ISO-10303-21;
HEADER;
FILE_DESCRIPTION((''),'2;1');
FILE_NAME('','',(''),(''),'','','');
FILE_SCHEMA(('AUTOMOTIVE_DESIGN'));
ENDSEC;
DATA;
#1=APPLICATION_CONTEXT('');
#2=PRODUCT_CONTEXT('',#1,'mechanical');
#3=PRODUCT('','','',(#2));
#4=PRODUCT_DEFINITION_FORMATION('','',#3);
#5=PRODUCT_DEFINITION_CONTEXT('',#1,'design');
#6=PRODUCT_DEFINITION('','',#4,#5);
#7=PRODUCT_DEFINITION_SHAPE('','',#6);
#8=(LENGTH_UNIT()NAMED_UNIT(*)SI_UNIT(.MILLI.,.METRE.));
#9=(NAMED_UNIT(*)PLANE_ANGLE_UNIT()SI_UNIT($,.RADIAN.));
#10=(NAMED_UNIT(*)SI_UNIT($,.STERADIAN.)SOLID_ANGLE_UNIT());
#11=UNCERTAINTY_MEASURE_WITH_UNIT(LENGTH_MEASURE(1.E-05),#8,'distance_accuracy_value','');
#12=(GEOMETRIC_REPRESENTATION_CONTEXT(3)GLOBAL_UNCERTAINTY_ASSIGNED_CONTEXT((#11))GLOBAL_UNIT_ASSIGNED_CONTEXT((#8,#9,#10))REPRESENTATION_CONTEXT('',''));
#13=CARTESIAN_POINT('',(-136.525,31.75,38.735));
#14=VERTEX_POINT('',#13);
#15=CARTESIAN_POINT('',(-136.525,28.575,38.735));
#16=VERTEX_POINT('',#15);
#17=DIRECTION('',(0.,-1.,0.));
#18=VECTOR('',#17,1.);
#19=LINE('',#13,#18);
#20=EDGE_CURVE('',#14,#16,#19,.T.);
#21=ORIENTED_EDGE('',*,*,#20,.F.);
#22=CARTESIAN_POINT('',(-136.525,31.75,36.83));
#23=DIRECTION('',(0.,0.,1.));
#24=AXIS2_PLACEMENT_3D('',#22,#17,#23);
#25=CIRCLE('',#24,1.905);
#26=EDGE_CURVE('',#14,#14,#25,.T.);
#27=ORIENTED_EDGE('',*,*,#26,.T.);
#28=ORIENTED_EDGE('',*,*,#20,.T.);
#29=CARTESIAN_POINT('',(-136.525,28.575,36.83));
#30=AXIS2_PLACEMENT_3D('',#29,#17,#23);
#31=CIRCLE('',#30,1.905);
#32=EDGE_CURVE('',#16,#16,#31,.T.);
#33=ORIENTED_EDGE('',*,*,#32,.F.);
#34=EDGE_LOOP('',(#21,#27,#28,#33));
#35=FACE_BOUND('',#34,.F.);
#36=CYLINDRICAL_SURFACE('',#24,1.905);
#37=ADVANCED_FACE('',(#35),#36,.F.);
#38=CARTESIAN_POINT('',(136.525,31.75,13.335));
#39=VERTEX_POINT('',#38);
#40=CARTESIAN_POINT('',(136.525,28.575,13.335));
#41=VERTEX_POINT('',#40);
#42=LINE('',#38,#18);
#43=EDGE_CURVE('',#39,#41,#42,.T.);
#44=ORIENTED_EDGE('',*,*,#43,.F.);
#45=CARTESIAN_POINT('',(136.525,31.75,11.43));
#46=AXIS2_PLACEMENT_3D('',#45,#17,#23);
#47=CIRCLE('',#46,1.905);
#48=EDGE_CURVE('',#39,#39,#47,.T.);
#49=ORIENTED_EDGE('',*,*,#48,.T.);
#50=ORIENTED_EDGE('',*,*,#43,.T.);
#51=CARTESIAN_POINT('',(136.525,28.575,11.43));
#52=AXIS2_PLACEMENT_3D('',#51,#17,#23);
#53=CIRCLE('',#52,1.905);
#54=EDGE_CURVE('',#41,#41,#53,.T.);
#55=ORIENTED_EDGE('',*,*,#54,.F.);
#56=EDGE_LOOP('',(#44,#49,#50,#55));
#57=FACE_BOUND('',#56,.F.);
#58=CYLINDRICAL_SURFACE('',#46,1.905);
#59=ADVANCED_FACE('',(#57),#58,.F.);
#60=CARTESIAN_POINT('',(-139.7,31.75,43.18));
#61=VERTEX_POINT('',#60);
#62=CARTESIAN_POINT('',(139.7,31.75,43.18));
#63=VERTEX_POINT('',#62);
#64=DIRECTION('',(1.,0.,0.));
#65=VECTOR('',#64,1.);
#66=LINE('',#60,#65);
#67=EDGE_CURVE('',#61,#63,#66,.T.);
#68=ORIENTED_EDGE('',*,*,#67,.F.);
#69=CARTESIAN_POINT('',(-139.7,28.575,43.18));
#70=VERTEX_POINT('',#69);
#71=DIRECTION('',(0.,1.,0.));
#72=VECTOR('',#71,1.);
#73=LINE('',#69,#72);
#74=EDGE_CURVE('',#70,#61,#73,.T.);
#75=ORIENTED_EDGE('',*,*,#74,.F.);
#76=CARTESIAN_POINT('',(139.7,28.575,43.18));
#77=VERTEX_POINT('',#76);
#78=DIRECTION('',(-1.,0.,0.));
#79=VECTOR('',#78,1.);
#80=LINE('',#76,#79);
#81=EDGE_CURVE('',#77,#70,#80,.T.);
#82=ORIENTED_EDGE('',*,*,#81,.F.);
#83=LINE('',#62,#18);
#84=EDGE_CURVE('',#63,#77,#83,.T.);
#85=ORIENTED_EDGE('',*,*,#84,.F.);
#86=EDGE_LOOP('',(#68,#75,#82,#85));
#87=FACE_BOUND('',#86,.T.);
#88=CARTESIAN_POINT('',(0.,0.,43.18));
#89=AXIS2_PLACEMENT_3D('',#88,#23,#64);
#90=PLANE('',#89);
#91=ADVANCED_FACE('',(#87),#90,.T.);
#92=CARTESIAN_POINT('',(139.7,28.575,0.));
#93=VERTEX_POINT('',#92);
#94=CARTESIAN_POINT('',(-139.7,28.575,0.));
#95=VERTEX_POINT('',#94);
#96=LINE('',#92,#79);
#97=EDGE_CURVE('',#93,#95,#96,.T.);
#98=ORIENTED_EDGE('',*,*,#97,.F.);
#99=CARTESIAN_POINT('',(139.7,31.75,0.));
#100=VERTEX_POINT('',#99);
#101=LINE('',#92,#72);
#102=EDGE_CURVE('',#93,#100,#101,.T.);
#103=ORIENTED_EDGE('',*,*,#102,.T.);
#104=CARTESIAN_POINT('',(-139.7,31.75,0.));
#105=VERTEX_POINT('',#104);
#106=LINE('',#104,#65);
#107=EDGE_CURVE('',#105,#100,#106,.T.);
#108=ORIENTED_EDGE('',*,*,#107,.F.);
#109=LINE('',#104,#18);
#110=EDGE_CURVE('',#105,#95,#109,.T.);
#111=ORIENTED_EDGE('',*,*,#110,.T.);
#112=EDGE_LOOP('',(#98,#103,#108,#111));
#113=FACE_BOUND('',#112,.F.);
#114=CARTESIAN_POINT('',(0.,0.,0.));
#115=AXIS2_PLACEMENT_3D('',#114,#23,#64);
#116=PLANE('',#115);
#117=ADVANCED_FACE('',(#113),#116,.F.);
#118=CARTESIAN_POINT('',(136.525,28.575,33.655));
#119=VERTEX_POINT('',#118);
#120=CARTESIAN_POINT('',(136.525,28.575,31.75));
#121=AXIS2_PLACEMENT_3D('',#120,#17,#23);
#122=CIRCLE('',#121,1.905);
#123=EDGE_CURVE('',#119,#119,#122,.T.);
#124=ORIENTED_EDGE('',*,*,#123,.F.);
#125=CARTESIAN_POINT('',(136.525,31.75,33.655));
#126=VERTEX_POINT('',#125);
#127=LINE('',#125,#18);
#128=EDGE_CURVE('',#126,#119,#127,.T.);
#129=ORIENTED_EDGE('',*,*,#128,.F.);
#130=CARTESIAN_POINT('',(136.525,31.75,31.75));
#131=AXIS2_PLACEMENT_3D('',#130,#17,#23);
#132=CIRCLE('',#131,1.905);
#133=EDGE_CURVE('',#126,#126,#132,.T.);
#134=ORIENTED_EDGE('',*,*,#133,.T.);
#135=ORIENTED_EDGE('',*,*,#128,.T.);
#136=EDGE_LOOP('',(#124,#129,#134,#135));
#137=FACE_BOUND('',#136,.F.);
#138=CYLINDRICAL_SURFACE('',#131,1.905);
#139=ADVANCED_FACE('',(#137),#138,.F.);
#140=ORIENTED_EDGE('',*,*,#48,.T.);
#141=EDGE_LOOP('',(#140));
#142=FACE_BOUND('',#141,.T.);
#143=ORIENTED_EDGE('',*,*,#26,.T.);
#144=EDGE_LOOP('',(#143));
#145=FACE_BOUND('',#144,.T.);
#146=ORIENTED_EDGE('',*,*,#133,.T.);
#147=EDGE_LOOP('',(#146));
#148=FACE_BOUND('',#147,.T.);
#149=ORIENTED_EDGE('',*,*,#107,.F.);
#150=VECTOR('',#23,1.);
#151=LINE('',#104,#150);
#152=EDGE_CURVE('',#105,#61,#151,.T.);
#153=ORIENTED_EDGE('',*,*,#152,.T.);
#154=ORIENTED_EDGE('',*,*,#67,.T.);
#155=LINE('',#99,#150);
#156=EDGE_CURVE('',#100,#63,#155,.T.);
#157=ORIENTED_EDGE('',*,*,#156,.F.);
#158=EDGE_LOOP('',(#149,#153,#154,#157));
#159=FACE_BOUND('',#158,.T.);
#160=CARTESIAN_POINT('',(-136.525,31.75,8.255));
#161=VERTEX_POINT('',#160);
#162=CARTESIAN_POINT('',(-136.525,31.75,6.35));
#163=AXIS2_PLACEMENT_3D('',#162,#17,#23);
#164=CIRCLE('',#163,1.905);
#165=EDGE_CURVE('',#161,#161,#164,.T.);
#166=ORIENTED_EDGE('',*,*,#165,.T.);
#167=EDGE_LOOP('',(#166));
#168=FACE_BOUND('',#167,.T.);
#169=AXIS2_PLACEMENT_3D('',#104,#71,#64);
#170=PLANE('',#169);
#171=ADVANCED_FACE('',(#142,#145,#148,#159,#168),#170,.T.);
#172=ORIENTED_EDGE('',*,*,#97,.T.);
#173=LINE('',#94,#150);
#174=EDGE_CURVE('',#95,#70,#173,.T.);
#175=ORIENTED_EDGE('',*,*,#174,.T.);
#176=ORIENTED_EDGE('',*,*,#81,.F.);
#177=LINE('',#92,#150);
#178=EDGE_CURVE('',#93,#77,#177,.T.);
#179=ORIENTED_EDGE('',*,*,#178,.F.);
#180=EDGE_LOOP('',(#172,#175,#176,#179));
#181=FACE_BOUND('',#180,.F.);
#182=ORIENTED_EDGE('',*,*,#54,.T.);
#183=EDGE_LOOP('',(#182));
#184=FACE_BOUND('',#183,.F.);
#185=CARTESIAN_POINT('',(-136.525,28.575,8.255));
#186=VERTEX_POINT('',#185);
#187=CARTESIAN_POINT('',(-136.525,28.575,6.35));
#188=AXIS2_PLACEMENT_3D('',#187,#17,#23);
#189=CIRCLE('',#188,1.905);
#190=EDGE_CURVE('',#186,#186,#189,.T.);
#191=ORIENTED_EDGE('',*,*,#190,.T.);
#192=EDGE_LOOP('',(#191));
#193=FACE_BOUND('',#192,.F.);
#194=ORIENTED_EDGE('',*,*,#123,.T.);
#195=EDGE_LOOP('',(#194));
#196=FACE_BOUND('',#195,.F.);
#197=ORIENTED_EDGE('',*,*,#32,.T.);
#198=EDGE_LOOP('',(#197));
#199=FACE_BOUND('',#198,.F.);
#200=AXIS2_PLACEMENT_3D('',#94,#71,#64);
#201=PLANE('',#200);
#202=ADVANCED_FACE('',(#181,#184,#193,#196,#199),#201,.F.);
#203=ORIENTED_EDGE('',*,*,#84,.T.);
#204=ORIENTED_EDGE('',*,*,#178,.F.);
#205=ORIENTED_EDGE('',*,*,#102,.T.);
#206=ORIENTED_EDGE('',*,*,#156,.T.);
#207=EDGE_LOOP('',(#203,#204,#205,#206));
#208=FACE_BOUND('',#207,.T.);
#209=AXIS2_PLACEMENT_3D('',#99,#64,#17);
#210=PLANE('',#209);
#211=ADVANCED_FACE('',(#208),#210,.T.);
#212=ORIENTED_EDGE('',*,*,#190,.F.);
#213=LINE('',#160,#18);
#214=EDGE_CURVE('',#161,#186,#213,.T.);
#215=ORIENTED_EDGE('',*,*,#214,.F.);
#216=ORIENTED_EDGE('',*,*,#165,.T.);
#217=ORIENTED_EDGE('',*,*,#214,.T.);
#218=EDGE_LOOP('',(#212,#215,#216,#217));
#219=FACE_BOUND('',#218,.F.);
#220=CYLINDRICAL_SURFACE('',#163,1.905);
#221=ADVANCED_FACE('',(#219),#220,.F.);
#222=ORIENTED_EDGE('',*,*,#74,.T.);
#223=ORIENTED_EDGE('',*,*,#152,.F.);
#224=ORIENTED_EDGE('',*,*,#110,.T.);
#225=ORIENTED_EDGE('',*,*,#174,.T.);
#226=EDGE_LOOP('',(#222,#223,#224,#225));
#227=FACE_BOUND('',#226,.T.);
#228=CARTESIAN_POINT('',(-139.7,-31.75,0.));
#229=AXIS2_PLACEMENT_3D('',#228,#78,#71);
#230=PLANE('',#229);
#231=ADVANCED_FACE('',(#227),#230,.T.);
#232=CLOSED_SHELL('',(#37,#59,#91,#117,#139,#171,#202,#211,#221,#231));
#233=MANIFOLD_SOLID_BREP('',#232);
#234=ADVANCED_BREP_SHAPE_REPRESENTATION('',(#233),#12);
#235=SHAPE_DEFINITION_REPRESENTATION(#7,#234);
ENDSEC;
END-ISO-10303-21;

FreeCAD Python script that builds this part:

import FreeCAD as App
import Part
import Sketcher
Q = App.Units.Quantity

doc = App.newDocument("Part")
body = doc.addObject("PartDesign::Body", "Body")

# Sketch on XY plane
sketch1 = body.newObject("Sketcher::SketchObject", "Sketch")
sketch1.AttachmentSupport = (doc.getObject("XY_Plane"), [""])
sketch1.MapMode = "FlatFace"
sketch1.addGeometry([
    Part.LineSegment(App.Vector(139.7, 31.75, 0), App.Vector(-139.7, 31.75, 0)),
    Part.LineSegment(App.Vector(-139.7, 31.75, 0), App.Vector(-139.7, -31.75, 0)),
    Part.LineSegment(App.Vector(-139.7, -31.75, 0), App.Vector(139.7, -31.75, 0)),
    Part.LineSegment(App.Vector(139.7, -31.75, 0), App.Vector(139.7, 31.75, 0)),
], False)
sketch1.addConstraint([
    Sketcher.Constraint("Coincident", 0, 2, 1, 1),
    Sketcher.Constraint("Coincident", 1, 2, 2, 1),
    Sketcher.Constraint("Coincident", 2, 2, 3, 1),
    Sketcher.Constraint("Coincident", 3, 2, 0, 1),
    Sketcher.Constraint("Horizontal", 0),
    Sketcher.Constraint("Vertical", 1),
    Sketcher.Constraint("Horizontal", 2),
    Sketcher.Constraint("Vertical", 3),
    Sketcher.Constraint("Symmetric", 0, 2, 2, 2, -1, 1),
    Sketcher.Constraint("DistanceX", 0, 2, 0, 1, Q("11 in")),
    Sketcher.Constraint("DistanceY", 1, 2, 1, 1, Q("2.5 in")),
])
pad1 = body.newObject("PartDesign::Pad", "Pad")
pad1.Profile = sketch1
pad1.Length = Q("1.7 in")

# Sketch on XY plane
sketch2 = body.newObject("Sketcher::SketchObject", "Sketch001")
sketch2.AttachmentSupport = (doc.getObject("XY_Plane"), [""])
sketch2.MapMode = "FlatFace"
sketch2.AttachmentOffset = App.Placement(App.Vector(0, 0, 1.7 * 25.4), App.Rotation())
sketch2.addGeometry([
    Part.LineSegment(App.Vector(-138.1125, 30.1625, 0), App.Vector(-138.1125, -31.75, 0)),
    Part.LineSegment(App.Vector(-138.1125, -31.75, 0), App.Vector(138.1125, -31.75, 0)),
    Part.LineSegment(App.Vector(138.1125, -31.75, 0), App.Vector(138.1125, 30.1625, 0)),
    Part.LineSegment(App.Vector(138.1125, 30.1625, 0), App.Vector(-138.1125, 30.1625, 0)),
], False)
sketch2.addConstraint([
    Sketcher.Constraint("Coincident", 0, 2, 1, 1),
    Sketcher.Constraint("Coincident", 1, 2, 2, 1),
    Sketcher.Constraint("Coincident", 2, 2, 3, 1),
    Sketcher.Constraint("Coincident", 3, 2, 0, 1),
    Sketcher.Constraint("Vertical", 0),
    Sketcher.Constraint("Horizontal", 1),
    Sketcher.Constraint("Vertical", 2),
    Sketcher.Constraint("Horizontal", 3),
    Sketcher.Constraint("DistanceX", 1, 1, 1, 2, Q("10.875 in")),
    Sketcher.Constraint("DistanceY", 0, 2, 0, 1, Q("2.4375 in")),
    Sketcher.Constraint("DistanceY", 0, 2, -1, 1, Q("1.25 in")),
    Sketcher.Constraint("DistanceX", 0, 2, -1, 1, Q("5.4375 in")),
])
pocket1 = body.newObject("PartDesign::Pocket", "Pocket")
pocket1.Profile = sketch2
pocket1.Length = Q("1.7 in")

# Sketch on YZ plane
sketch3 = body.newObject("Sketcher::SketchObject", "Sketch002")
sketch3.AttachmentSupport = (doc.getObject("YZ_Plane"), [""])
sketch3.MapMode = "FlatFace"
sketch3.AttachmentOffset = App.Placement(App.Vector(0, 0, -5.4375 * 25.4), App.Rotation())
sketch3.addGeometry([
    Part.Circle(App.Vector(9.8425, 21.59, 0), App.Vector(0, 0, 1), 5.05),
    Part.Circle(App.Vector(-10.4775, 21.59, 0), App.Vector(0, 0, 1), 1.5875),
], False)
sketch3.addConstraint([
    Sketcher.Constraint("Horizontal", 0, 3, 1, 3),
    Sketcher.Constraint("Diameter", 1, Q("0.125 in")),
    Sketcher.Constraint("DistanceX", 1, 3, 0, 3, Q("0.8 in")),
    Sketcher.Constraint("Diameter", 0, Q("10.1 mm")),
    Sketcher.Constraint("DistanceY", -1, 1, 0, 3, Q("0.85 in")),
    Sketcher.Constraint("DistanceX", -1, 1, 0, 3, Q("0.3875 in")),
])
pocket2 = body.newObject("PartDesign::Pocket", "Pocket001")
pocket2.Profile = sketch3
pocket2.Type = "ThroughAll"
pocket2.Midplane = True

# Sketch on YZ plane
sketch4 = body.newObject("Sketcher::SketchObject", "Sketch003")
sketch4.AttachmentSupport = (doc.getObject("YZ_Plane"), [""])
sketch4.MapMode = "FlatFace"
sketch4.AttachmentOffset = App.Placement(App.Vector(0, 0, 5.5 * 25.4), App.Rotation())
sketch4.addGeometry([
    Part.Circle(App.Vector(-5.3975, 10.16, 0), App.Vector(0, 0, 1), 2.3813),
    Part.Circle(App.Vector(-5.3975, 33.02, 0), App.Vector(0, 0, 1), 2.3813),
], False)
sketch4.addConstraint([
    Sketcher.Constraint("Equal", 0, 1),
    Sketcher.Constraint("Vertical", 0, 3, 1, 3),
    Sketcher.Constraint("Diameter", 0, Q("0.1875 in")),
    Sketcher.Constraint("DistanceY", -1, 1, 0, 3, Q("0.4 in")),
    Sketcher.Constraint("DistanceY", -1, 1, 1, 3, Q("1.3 in")),
    Sketcher.Constraint("DistanceX", 0, 3, -1, 1, Q("0.2125 in")),
])
pocket3 = body.newObject("PartDesign::Pocket", "Pocket002")
pocket3.Profile = sketch4
pocket3.Length = Q("0.0625 in")

# Sketch on YZ plane
sketch5 = body.newObject("Sketcher::SketchObject", "Sketch004")
sketch5.AttachmentSupport = (doc.getObject("YZ_Plane"), [""])
sketch5.MapMode = "FlatFace"
sketch5.AttachmentOffset = App.Placement(App.Vector(0, 0, -5.5 * 25.4), App.Rotation())
sketch5.addGeometry([
    Part.Circle(App.Vector(25.3425, 37.09, 0), App.Vector(0, 0, 1), 1.5875),
    Part.Circle(App.Vector(25.3425, 6.09, 0), App.Vector(0, 0, 1), 1.5875),
    Part.Circle(App.Vector(-5.6575, 37.09, 0), App.Vector(0, 0, 1), 1.5875),
    Part.Circle(App.Vector(-5.6575, 6.09, 0), App.Vector(0, 0, 1), 1.5875),
], False)
sketch5.addConstraint([
    Sketcher.Constraint("Equal", 0, 1),
    Sketcher.Constraint("Equal", 1, 2),
    Sketcher.Constraint("Equal", 2, 3),
    Sketcher.Constraint("Horizontal", 0, 3, 2, 3),
    Sketcher.Constraint("Horizontal", 1, 3, 3, 3),
    Sketcher.Constraint("Vertical", 0, 3, 1, 3),
    Sketcher.Constraint("Vertical", 2, 3, 3, 3),
    Sketcher.Constraint("Diameter", 0, Q("0.125 in")),
    Sketcher.Constraint("DistanceX", -1, 1, 0, 3, Q("25.3425 mm")),
    Sketcher.Constraint("DistanceY", -1, 1, 0, 3, Q("37.09 mm")),
    Sketcher.Constraint("DistanceY", -1, 1, 1, 3, Q("6.09 mm")),
    Sketcher.Constraint("DistanceX", 2, 3, -1, 1, Q("5.6575 mm")),
])
pocket4 = body.newObject("PartDesign::Pocket", "Pocket003")
pocket4.Profile = sketch5
pocket4.Length = Q("0.0625 in")
pocket4.Reversed = True

# Sketch on XY plane
sketch6 = body.newObject("Sketcher::SketchObject", "Sketch005")
sketch6.AttachmentSupport = (doc.getObject("XY_Plane"), [""])
sketch6.MapMode = "FlatFace"
sketch6.AttachmentOffset = App.Placement(App.Vector(0, 0, 1.7 * 25.4), App.Rotation())
sketch6.addGeometry([
    Part.LineSegment(App.Vector(278.0332, 30.1625, 0), App.Vector(-211.6655, 30.1625, 0)),  # 0
    Part.LineSegment(App.Vector(-211.6655, 30.1625, 0), App.Vector(-211.6655, -38.9491, 0)),  # 1
    Part.LineSegment(App.Vector(-211.6655, -38.9491, 0), App.Vector(-138.1125, -38.9491, 0)),  # 2
    Part.LineSegment(App.Vector(-138.1125, -38.9491, 0), App.Vector(-138.1125, -45.0873, 0)),  # 3
    Part.LineSegment(App.Vector(-138.1125, -45.0873, 0), App.Vector(278.0332, -45.0873, 0)),  # 4
    Part.LineSegment(App.Vector(278.0332, -45.0873, 0), App.Vector(278.0332, 30.1625, 0)),  # 5
], False)
sketch6.addConstraint([
    Sketcher.Constraint("Coincident", 0, 2, 1, 1),
    Sketcher.Constraint("Coincident", 1, 2, 2, 1),
    Sketcher.Constraint("Coincident", 2, 2, 3, 1),
    Sketcher.Constraint("Coincident", 3, 2, 4, 1),
    Sketcher.Constraint("Coincident", 4, 2, 5, 1),
    Sketcher.Constraint("Coincident", 5, 2, 0, 1),
    Sketcher.Constraint("Horizontal", 0),
    Sketcher.Constraint("Vertical", 1),
    Sketcher.Constraint("Horizontal", 2),
    Sketcher.Constraint("Vertical", 3),
    Sketcher.Constraint("Horizontal", 4),
    Sketcher.Constraint("Vertical", 5),
    Sketcher.Constraint("DistanceX", 4, 1, 4, 2, Q("16.3837 in")),
    Sketcher.Constraint("DistanceY", 5, 1, 5, 2, Q("2.9626 in")),
    Sketcher.Constraint("DistanceY", -1, 1, 0, 2, Q("1.1875 in")),
    Sketcher.Constraint("DistanceX", 2, 2, -1, 1, Q("5.4375 in")),
    Sketcher.Constraint("DistanceX", 0, 2, 0, 1, Q("489.6987 mm")),
    Sketcher.Constraint("DistanceY", 1, 2, 1, 1, Q("69.1116 mm")),
])
pocket5 = body.newObject("PartDesign::Pocket", "Pocket004")
pocket5.Profile = sketch6
pocket5.Type = "ThroughAll"

# Sketch on XZ plane
sketch7 = body.newObject("Sketcher::SketchObject", "Sketch006")
sketch7.AttachmentSupport = (doc.getObject("XZ_Plane"), [""])
sketch7.MapMode = "FlatFace"
sketch7.AttachmentOffset = App.Placement(App.Vector(0, 0, -1.25 * 25.4), App.Rotation())
sketch7.addGeometry([
    Part.LineSegment(App.Vector(139.7, 43.18, 0), App.Vector(139.7, 0, 0)),
    Part.LineSegment(App.Vector(139.7, 0, 0), App.Vector(-139.7, 0, 0)),
    Part.LineSegment(App.Vector(-139.7, 0, 0), App.Vector(-139.7, 43.18, 0)),
    Part.LineSegment(App.Vector(-139.7, 43.18, 0), App.Vector(139.7, 43.18, 0)),
], False)
sketch7.addConstraint([
    Sketcher.Constraint("Coincident", 0, 2, 1, 1),
    Sketcher.Constraint("Coincident", 1, 2, 2, 1),
    Sketcher.Constraint("Coincident", 2, 2, 3, 1),
    Sketcher.Constraint("Coincident", 3, 2, 0, 1),
    Sketcher.Constraint("Vertical", 0),
    Sketcher.Constraint("Horizontal", 1),
    Sketcher.Constraint("Vertical", 2),
    Sketcher.Constraint("Horizontal", 3),
    Sketcher.Constraint("Symmetric", 0, 2, 1, 2, -1, 1),
    Sketcher.Constraint("DistanceX", 1, 2, 1, 1, Q("11 in")),
    Sketcher.Constraint("DistanceY", 0, 2, 0, 1, Q("1.7 in")),
])
pad2 = body.newObject("PartDesign::Pad", "Pad001")
pad2.Profile = sketch7
pad2.Length = Q("0.125 in")

# Sketch on XZ plane
sketch8 = body.newObject("Sketcher::SketchObject", "Sketch007")
sketch8.AttachmentSupport = (doc.getObject("XZ_Plane"), [""])
sketch8.MapMode = "FlatFace"
sketch8.AttachmentOffset = App.Placement(App.Vector(0, 0, -1.25 * 25.4), App.Rotation())
sketch8.addGeometry([
    Part.Circle(App.Vector(136.525, 31.75, 0), App.Vector(0, 0, 1), 1.905),
    Part.Circle(App.Vector(136.525, 11.43, 0), App.Vector(0, 0, 1), 1.905),
    Part.Circle(App.Vector(-136.525, 6.35, 0), App.Vector(0, 0, 1), 1.905),
    Part.Circle(App.Vector(-136.525, 36.83, 0), App.Vector(0, 0, 1), 1.905),
], False)
sketch8.addConstraint([
    Sketcher.Constraint("Equal", 0, 1),
    Sketcher.Constraint("Equal", 1, 2),
    Sketcher.Constraint("Equal", 2, 3),
    Sketcher.Constraint("Vertical", 0, 3, 1, 3),
    Sketcher.Constraint("Vertical", 2, 3, 3, 3),
    Sketcher.Constraint("Diameter", 0, Q("0.15 in")),
    Sketcher.Constraint("DistanceY", 2, 3, 0, 3, Q("1 in")),
    Sketcher.Constraint("DistanceY", 1, 3, 3, 3, Q("1 in")),
    Sketcher.Constraint("DistanceY", 1, 3, 0, 3, Q("0.8 in")),
    Sketcher.Constraint("DistanceY", -1, 1, 0, 3, Q("1.25 in")),
    Sketcher.Constraint("DistanceX", 2, 3, 1, 3, Q("10.75 in")),
    Sketcher.Constraint("DistanceX", -1, 1, 0, 3, Q("5.375 in")),
])
doc.recompute()
hole = body.newObject("PartDesign::Hole", "Hole")
hole.Profile = sketch8
hole.ThreadType = "None"
hole.Diameter = Q("0.15 in")
hole.DepthType = "Dimension"
hole.Depth = Q("0.885 in")
hole.DrillPoint = "Angled"
hole.DrillPointAngle = 118
hole.Reversed = True

doc.recompute()
